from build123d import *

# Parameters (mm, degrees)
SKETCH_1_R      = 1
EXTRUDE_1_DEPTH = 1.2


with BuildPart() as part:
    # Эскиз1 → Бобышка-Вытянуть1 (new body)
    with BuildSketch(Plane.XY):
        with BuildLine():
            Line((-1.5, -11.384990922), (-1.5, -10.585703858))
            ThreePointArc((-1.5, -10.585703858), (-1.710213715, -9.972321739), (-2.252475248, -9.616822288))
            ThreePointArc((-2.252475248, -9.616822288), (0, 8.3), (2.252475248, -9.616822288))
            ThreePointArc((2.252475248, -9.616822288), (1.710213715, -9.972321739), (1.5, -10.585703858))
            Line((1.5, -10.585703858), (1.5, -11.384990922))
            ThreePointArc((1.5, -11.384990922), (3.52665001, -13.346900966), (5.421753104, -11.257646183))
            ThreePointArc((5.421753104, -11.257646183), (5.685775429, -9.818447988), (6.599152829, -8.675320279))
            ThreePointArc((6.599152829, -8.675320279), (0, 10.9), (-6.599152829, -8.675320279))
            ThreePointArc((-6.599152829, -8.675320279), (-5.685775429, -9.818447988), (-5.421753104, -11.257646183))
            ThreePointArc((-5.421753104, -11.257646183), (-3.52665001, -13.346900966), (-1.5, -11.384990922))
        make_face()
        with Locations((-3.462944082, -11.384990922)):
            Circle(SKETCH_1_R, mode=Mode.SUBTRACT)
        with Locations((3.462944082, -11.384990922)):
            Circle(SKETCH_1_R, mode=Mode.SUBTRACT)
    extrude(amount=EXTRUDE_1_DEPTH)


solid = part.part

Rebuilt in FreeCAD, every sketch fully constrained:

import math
import FreeCAD as App
import Part
import Sketcher

V = App.Vector
Q = App.Units.Quantity

doc = App.newDocument("Part")
body = doc.addObject("PartDesign::Body", "Body")

sketch1 = body.newObject("Sketcher::SketchObject", "Sketch")
sketch1.AttachmentSupport = (doc.getObject("XY_Plane"), [""])
sketch1.MapMode = "FlatFace"
sketch1.addGeometry(Part.LineSegment(V(-1.5, -11.384991, 0), V(-1.5, -10.585704, 0)), False)
sketch1.addGeometry(Part.ArcOfCircle(Part.Circle(V(-2.5, -10.585704, 0), V(0, 0, 1), 1), math.radians(0), math.radians(75.668912)), False)
sketch1.addGeometry(Part.ArcOfCircle(Part.Circle(V(0, -0.8, 0), V(0, 0, 1), 9.1), math.radians(-75.668912), math.radians(255.668912)), False)
sketch1.addGeometry(Part.ArcOfCircle(Part.Circle(V(2.5, -10.585704, 0), V(0, 0, 1), 1), math.radians(104.331088), math.radians(180)), False)
sketch1.addGeometry(Part.LineSegment(V(1.5, -10.585704, 0), V(1.5, -11.384991, 0)), False)
sketch1.addGeometry(Part.ArcOfCircle(Part.Circle(V(3.462944, -11.384991, 0), V(0, 0, 1), 1.962944), math.radians(-180), math.radians(3.719639)), False)
sketch1.addGeometry(Part.ArcOfCircle(Part.Circle(V(8.415433, -11.063023, 0), V(0, 0, 1), 3), math.radians(127.259565), math.radians(183.719639)), False)
sketch1.addGeometry(Part.ArcOfCircle(Part.Circle(V(0, 0, 0), V(0, 0, 1), 10.9), math.radians(-52.740435), math.radians(232.740435)), False)
sketch1.addGeometry(Part.ArcOfCircle(Part.Circle(V(-8.415433, -11.063023, 0), V(0, 0, 1), 3), math.radians(-3.719639), math.radians(52.740435)), False)
sketch1.addGeometry(Part.ArcOfCircle(Part.Circle(V(-3.462944, -11.384991, 0), V(0, 0, 1), 1.962944), math.radians(176.280361), math.radians(360)), False)
sketch1.addGeometry(Part.Circle(V(-3.462944, -11.384991, 0), V(0, 0, 1), 1), False)
sketch1.addGeometry(Part.Circle(V(3.462944, -11.384991, 0), V(0, 0, 1), 1), False)
sketch1.addConstraint(Sketcher.Constraint("Tangent", 0, 2, 1, 1))
sketch1.addConstraint(Sketcher.Constraint("Tangent", 1, 2, 2, 2))
sketch1.addConstraint(Sketcher.Constraint("Tangent", 2, 1, 3, 1))
sketch1.addConstraint(Sketcher.Constraint("Tangent", 3, 2, 4, 1))
sketch1.addConstraint(Sketcher.Constraint("Tangent", 4, 2, 5, 1))
sketch1.addConstraint(Sketcher.Constraint("Tangent", 5, 2, 6, 2))
sketch1.addConstraint(Sketcher.Constraint("Tangent", 6, 1, 7, 1))
sketch1.addConstraint(Sketcher.Constraint("Tangent", 7, 2, 8, 2))
sketch1.addConstraint(Sketcher.Constraint("Tangent", 8, 1, 9, 1))
sketch1.addConstraint(Sketcher.Constraint("Tangent", 9, 2, 0, 1))
sketch1.addConstraint(Sketcher.Constraint("Vertical", 0))
sketch1.addConstraint(Sketcher.Constraint("Vertical", 4))
sketch1.addConstraint(Sketcher.Constraint("Coincident", 7, 3, -1, 1))
sketch1.addConstraint(Sketcher.Constraint("Coincident", 10, 3, 9, 3))
sketch1.addConstraint(Sketcher.Constraint("Coincident", 11, 3, 5, 3))
sketch1.addConstraint(Sketcher.Constraint("Equal", 1, 3))
sketch1.addConstraint(Sketcher.Constraint("Equal", 6, 8))
sketch1.addConstraint(Sketcher.Constraint("Equal", 5, 9))
sketch1.addConstraint(Sketcher.Constraint("Equal", 3, 10))
sketch1.addConstraint(Sketcher.Constraint("Equal", 10, 11))
sketch1.addConstraint(Sketcher.Constraint("Symmetric", 1, 3, 3, 3, -2))
sketch1.addConstraint(Sketcher.Constraint("Horizontal", 6, 3, 8, 3))
sketch1.addConstraint(Sketcher.Constraint("Diameter", 10, Q("2 mm")))
sketch1.addConstraint(Sketcher.Constraint("Radius", 6, Q("3 mm")))
sketch1.addConstraint(Sketcher.Constraint("Radius", 2, Q("9.1 mm")))
sketch1.addConstraint(Sketcher.Constraint("Radius", 7, Q("10.9 mm")))
sketch1.addConstraint(Sketcher.Constraint("DistanceX", 1, 3, 3, 3, Q("5 mm")))
sketch1.addConstraint(Sketcher.Constraint("DistanceY", 2, 3, -1, 1, Q("0.8 mm")))
sketch1.addConstraint(Sketcher.Constraint("Radius", 5, Q("1.962944 mm")))
sketch1.addConstraint(Sketcher.Constraint("DistanceX", 5, 2, 6, 1, Q("1.1774 mm")))
pad1 = body.newObject("PartDesign::Pad", "Pad")
pad1.Profile = sketch1
pad1.Length = 1.2

doc.recompute()
